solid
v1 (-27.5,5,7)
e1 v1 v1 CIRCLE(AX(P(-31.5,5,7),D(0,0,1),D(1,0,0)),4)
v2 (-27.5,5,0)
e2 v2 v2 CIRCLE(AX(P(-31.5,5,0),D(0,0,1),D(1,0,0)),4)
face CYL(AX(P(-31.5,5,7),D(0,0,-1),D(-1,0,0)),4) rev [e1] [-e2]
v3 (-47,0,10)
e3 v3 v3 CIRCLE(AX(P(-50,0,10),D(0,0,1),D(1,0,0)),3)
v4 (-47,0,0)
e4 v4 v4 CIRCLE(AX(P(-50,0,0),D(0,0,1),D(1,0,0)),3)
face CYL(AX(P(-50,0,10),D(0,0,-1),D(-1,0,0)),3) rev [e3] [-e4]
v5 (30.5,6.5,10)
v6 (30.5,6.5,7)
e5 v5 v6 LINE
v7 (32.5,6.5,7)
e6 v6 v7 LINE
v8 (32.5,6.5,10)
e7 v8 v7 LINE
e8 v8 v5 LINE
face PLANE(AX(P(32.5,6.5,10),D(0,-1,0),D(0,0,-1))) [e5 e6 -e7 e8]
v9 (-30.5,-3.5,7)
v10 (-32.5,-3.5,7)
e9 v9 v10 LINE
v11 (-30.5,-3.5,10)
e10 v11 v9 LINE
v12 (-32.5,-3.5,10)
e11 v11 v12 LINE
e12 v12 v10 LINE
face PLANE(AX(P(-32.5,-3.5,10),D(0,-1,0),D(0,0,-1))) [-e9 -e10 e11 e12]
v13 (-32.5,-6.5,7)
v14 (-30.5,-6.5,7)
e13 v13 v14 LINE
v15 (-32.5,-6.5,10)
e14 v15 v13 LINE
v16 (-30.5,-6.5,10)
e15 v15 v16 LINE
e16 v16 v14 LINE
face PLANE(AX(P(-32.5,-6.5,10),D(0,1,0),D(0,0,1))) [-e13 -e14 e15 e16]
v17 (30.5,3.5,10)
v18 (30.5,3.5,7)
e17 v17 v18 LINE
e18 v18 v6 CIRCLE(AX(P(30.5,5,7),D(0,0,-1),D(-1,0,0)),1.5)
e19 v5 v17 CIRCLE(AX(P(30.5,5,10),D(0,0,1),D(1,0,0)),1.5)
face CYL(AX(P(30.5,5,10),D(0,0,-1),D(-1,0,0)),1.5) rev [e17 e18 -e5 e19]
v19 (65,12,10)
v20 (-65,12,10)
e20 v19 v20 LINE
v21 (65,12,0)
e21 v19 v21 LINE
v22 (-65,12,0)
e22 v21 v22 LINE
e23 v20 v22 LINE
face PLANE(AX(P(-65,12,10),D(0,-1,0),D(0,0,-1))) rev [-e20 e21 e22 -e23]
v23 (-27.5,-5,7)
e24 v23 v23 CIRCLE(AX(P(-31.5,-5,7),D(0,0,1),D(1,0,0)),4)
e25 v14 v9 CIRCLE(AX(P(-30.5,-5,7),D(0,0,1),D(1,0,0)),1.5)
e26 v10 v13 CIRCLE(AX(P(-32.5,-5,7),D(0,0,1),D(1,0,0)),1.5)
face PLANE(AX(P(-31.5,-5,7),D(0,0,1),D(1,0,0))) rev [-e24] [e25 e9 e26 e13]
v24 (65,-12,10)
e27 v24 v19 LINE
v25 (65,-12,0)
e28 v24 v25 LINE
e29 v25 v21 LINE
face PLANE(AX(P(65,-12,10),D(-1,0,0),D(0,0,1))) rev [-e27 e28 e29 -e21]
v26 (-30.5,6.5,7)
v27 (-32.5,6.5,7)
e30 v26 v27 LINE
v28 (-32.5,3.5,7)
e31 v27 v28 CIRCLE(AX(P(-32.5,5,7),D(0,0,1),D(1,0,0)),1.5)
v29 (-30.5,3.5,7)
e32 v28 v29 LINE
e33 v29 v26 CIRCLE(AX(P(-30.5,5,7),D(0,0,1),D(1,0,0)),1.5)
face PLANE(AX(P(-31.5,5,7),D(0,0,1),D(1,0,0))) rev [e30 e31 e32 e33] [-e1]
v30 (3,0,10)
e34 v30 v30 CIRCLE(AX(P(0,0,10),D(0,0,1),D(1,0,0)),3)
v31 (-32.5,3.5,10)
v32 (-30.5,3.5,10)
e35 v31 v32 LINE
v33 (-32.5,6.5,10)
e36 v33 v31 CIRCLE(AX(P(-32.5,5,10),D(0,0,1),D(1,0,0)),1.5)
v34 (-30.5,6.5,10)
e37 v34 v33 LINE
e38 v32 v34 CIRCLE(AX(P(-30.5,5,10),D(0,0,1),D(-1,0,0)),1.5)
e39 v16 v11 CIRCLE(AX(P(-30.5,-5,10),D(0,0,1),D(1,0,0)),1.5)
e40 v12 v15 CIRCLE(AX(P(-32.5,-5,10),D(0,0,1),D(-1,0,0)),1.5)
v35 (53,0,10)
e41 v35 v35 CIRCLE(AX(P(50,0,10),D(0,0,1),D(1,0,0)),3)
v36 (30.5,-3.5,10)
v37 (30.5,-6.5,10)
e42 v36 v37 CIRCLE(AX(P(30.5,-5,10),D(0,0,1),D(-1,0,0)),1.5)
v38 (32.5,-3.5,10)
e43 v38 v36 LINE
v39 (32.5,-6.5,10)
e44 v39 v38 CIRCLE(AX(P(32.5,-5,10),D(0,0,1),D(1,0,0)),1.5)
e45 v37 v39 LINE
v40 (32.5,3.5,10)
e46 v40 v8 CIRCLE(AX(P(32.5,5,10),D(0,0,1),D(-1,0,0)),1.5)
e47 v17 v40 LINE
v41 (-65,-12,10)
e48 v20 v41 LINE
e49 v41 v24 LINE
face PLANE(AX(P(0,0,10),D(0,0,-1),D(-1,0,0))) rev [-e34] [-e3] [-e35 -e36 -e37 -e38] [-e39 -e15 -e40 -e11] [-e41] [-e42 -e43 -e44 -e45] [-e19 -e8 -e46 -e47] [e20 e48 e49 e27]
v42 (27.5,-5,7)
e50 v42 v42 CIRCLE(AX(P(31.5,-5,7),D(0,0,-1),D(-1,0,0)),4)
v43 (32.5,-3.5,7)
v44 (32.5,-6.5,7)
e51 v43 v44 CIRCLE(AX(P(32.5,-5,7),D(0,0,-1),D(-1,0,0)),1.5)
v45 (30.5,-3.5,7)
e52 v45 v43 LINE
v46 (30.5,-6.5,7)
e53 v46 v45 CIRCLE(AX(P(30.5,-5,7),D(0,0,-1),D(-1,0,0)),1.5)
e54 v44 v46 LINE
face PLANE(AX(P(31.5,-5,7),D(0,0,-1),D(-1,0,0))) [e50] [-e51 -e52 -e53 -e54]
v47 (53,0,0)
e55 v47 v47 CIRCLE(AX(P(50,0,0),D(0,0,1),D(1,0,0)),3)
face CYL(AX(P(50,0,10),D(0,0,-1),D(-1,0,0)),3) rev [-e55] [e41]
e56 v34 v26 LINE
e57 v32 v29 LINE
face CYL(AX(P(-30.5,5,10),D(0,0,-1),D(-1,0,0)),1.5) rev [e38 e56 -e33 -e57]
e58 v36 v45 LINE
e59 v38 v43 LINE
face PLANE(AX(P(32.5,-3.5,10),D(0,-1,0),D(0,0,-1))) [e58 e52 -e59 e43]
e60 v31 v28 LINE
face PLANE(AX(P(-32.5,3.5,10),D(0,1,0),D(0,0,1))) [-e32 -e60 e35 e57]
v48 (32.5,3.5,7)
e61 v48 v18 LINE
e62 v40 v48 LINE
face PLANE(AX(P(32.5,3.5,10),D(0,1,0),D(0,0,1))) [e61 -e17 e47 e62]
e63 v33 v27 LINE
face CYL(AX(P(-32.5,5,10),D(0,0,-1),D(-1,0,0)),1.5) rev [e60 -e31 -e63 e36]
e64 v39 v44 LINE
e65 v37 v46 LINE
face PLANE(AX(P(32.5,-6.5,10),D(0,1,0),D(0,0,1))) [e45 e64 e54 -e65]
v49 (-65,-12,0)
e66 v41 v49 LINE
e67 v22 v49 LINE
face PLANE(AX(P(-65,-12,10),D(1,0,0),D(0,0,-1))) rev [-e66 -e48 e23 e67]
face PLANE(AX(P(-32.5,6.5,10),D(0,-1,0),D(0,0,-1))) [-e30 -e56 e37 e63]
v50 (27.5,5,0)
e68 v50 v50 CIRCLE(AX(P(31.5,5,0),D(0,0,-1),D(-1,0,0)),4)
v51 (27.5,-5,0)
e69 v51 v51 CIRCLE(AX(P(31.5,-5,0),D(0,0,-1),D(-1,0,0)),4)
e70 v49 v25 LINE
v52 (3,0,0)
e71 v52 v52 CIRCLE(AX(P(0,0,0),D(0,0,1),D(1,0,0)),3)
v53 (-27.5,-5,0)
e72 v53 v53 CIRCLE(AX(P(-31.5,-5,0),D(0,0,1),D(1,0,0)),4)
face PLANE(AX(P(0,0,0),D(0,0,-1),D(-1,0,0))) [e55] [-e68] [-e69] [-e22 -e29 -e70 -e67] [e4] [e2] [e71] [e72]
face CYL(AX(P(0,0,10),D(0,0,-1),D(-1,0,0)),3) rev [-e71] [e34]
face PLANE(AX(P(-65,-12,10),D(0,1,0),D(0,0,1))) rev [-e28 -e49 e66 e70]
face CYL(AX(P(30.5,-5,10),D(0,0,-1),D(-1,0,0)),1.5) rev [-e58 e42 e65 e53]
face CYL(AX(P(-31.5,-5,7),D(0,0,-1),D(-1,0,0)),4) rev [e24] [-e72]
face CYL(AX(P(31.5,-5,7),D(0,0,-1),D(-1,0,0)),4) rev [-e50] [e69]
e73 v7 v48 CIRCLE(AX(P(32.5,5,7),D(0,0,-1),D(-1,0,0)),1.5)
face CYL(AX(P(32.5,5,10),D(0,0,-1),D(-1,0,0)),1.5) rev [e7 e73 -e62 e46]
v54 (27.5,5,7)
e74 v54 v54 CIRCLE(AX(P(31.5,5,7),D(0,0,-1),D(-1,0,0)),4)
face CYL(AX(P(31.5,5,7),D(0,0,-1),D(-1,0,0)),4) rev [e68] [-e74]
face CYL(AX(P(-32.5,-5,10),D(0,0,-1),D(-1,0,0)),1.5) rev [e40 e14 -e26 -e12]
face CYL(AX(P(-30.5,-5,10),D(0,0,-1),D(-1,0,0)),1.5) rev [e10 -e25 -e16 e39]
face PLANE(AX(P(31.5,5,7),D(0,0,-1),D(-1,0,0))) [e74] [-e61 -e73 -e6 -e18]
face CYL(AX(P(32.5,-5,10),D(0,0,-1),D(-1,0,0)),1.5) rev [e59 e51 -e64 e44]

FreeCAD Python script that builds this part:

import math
import FreeCAD as App
import Part
import Sketcher
Q = App.Units.Quantity

doc = App.newDocument("Part")
params = doc.addObject("Spreadsheet::Sheet", "Params")
for row, (alias, value) in enumerate([
    ("sketch1_diameter", "6 mm"),
    ("sketch1_radius", "1.5 mm"),
    ("sketch1_width", "130 mm"),
    ("sketch1_width2", "2 mm"),
    ("sketch1_height", "24 mm"),
    ("pad1_length", "10 mm"),
    ("sketch2_diameter", "8 mm"),
    ("pocket1_length", "7 mm"),
], start=1):
    params.set(f"A{row}", alias)
    params.set(f"B{row}", "=" + value)
    params.setAlias(f"B{row}", alias)

body = doc.addObject("PartDesign::Body", "Body")

# Sketch on XY plane
sketch1 = doc.addObject("Sketcher::SketchObject", "Sketch")
body.addObject(sketch1)
sketch1.AttachmentSupport = (doc.XY_Plane, [""])
sketch1.MapMode = "FlatFace"
sketch1.addGeometry(Part.LineSegment(App.Vector(-65, 12, 0), App.Vector(-65, -12, 0)), False)
sketch1.addGeometry(Part.LineSegment(App.Vector(-65, -12, 0), App.Vector(65, -12, 0)), False)
sketch1.addGeometry(Part.LineSegment(App.Vector(65, -12, 0), App.Vector(65, 12, 0)), False)
sketch1.addGeometry(Part.LineSegment(App.Vector(65, 12, 0), App.Vector(-65, 12, 0)), False)
sketch1.addGeometry(Part.LineSegment(App.Vector(-30.5, -6.5, 0), App.Vector(-32.5, -6.5, 0)), False)
sketch1.addGeometry(Part.ArcOfCircle(Part.Circle(App.Vector(-32.5, -5, 0), App.Vector(0, 0, 1), 1.5), math.radians(90), math.radians(270)), False)
sketch1.addGeometry(Part.LineSegment(App.Vector(-32.5, -3.5, 0), App.Vector(-30.5, -3.5, 0)), False)
sketch1.addGeometry(Part.ArcOfCircle(Part.Circle(App.Vector(-30.5, -5, 0), App.Vector(0, 0, 1), 1.5), math.radians(-90), math.radians(90)), False)
sketch1.addGeometry(Part.ArcOfCircle(Part.Circle(App.Vector(32.5, -5, 0), App.Vector(0, 0, 1), 1.5), math.radians(-90), math.radians(90)), False)
sketch1.addGeometry(Part.LineSegment(App.Vector(32.5, -6.5, 0), App.Vector(30.5, -6.5, 0)), False)
sketch1.addGeometry(Part.ArcOfCircle(Part.Circle(App.Vector(30.5, -5, 0), App.Vector(0, 0, 1), 1.5), math.radians(90), math.radians(270)), False)
sketch1.addGeometry(Part.LineSegment(App.Vector(30.5, -3.5, 0), App.Vector(32.5, -3.5, 0)), False)
sketch1.addGeometry(Part.Circle(App.Vector(-50, 0, 0), App.Vector(0, 0, 1), 3), False)
sketch1.addGeometry(Part.ArcOfCircle(Part.Circle(App.Vector(-32.5, 5, 0), App.Vector(0, 0, 1), 1.5), math.radians(90), math.radians(270)), False)
sketch1.addGeometry(Part.LineSegment(App.Vector(-32.5, 6.5, 0), App.Vector(-30.5, 6.5, 0)), False)
sketch1.addGeometry(Part.ArcOfCircle(Part.Circle(App.Vector(-30.5, 5, 0), App.Vector(0, 0, 1), 1.5), math.radians(-90), math.radians(90)), False)
sketch1.addGeometry(Part.LineSegment(App.Vector(-30.5, 3.5, 0), App.Vector(-32.5, 3.5, 0)), False)
sketch1.addGeometry(Part.Circle(App.Vector(0, 0, 0), App.Vector(0, 0, 1), 3), False)
sketch1.addGeometry(Part.Circle(App.Vector(50, 0, 0), App.Vector(0, 0, 1), 3), False)
sketch1.addGeometry(Part.LineSegment(App.Vector(30.5, 6.5, 0), App.Vector(32.5, 6.5, 0)), False)
sketch1.addGeometry(Part.ArcOfCircle(Part.Circle(App.Vector(32.5, 5, 0), App.Vector(0, 0, 1), 1.5), math.radians(-90), math.radians(90)), False)
sketch1.addGeometry(Part.LineSegment(App.Vector(32.5, 3.5, 0), App.Vector(30.5, 3.5, 0)), False)
sketch1.addGeometry(Part.ArcOfCircle(Part.Circle(App.Vector(30.5, 5, 0), App.Vector(0, 0, 1), 1.5), math.radians(90), math.radians(270)), False)
sketch1.addConstraint(Sketcher.Constraint("Coincident", 0, 2, 1, 1))
sketch1.addConstraint(Sketcher.Constraint("Coincident", 1, 2, 2, 1))
sketch1.addConstraint(Sketcher.Constraint("Coincident", 2, 2, 3, 1))
sketch1.addConstraint(Sketcher.Constraint("Coincident", 3, 2, 0, 1))
sketch1.addConstraint(Sketcher.Constraint("Tangent", 4, 2, 5, 2))
sketch1.addConstraint(Sketcher.Constraint("Tangent", 5, 1, 6, 1))
sketch1.addConstraint(Sketcher.Constraint("Tangent", 6, 2, 7, 2))
sketch1.addConstraint(Sketcher.Constraint("Tangent", 7, 1, 4, 1))
sketch1.addConstraint(Sketcher.Constraint("Tangent", 8, 1, 9, 1))
sketch1.addConstraint(Sketcher.Constraint("Tangent", 9, 2, 10, 2))
sketch1.addConstraint(Sketcher.Constraint("Tangent", 10, 1, 11, 1))
sketch1.addConstraint(Sketcher.Constraint("Tangent", 11, 2, 8, 2))
sketch1.addConstraint(Sketcher.Constraint("Tangent", 13, 1, 14, 1))
sketch1.addConstraint(Sketcher.Constraint("Tangent", 14, 2, 15, 2))
sketch1.addConstraint(Sketcher.Constraint("Tangent", 15, 1, 16, 1))
sketch1.addConstraint(Sketcher.Constraint("Tangent", 16, 2, 13, 2))
sketch1.addConstraint(Sketcher.Constraint("Tangent", 19, 2, 20, 2))
sketch1.addConstraint(Sketcher.Constraint("Tangent", 20, 1, 21, 1))
sketch1.addConstraint(Sketcher.Constraint("Tangent", 21, 2, 22, 2))
sketch1.addConstraint(Sketcher.Constraint("Tangent", 22, 1, 19, 1))
sketch1.addConstraint(Sketcher.Constraint("Vertical", 0))
sketch1.addConstraint(Sketcher.Constraint("Horizontal", 1))
sketch1.addConstraint(Sketcher.Constraint("Vertical", 2))
sketch1.addConstraint(Sketcher.Constraint("Horizontal", 3))
sketch1.addConstraint(Sketcher.Constraint("Horizontal", 4))
sketch1.addConstraint(Sketcher.Constraint("Horizontal", 6))
sketch1.addConstraint(Sketcher.Constraint("Horizontal", 9))
sketch1.addConstraint(Sketcher.Constraint("Horizontal", 11))
sketch1.addConstraint(Sketcher.Constraint("Horizontal", 14))
sketch1.addConstraint(Sketcher.Constraint("Horizontal", 16))
sketch1.addConstraint(Sketcher.Constraint("Horizontal", 19))
sketch1.addConstraint(Sketcher.Constraint("Horizontal", 21))
sketch1.addConstraint(Sketcher.Constraint("Coincident", 17, 3, -1, 1))
sketch1.addConstraint(Sketcher.Constraint("Equal", 7, 8))
sketch1.addConstraint(Sketcher.Constraint("Equal", 10, 13))
sketch1.addConstraint(Sketcher.Constraint("Equal", 12, 17))
sketch1.addConstraint(Sketcher.Constraint("Equal", 17, 18))
sketch1.addConstraint(Sketcher.Constraint("Equal", 15, 20))
sketch1.addConstraint(Sketcher.Constraint("Symmetric", 8, 3, 13, 3, -1, 1))
sketch1.addConstraint(Sketcher.Constraint("Symmetric", 12, 3, 18, 3, -1, 1))
sketch1.addConstraint(Sketcher.Constraint("Symmetric", 5, 3, 20, 3, -1, 1))
sketch1.addConstraint(Sketcher.Constraint("Symmetric", 0, 2, 2, 2, -1, 1))
sketch1.addConstraint(Sketcher.Constraint("Symmetric", 5, 3, 8, 3, -2))
sketch1.addConstraint(Sketcher.Constraint("PointOnObject", 12, 3, -1))
sketch1.addConstraint(Sketcher.Constraint("Vertical", 7, 3, 15, 3))
sketch1.addConstraint(Sketcher.Constraint("Vertical", 10, 3, 22, 3))
sketch1.addConstraint(Sketcher.Constraint("Equal", 6, 9))
sketch1.addConstraint(Sketcher.Constraint("Diameter", 12, Q("6 mm")))
sketch1.addConstraint(Sketcher.Constraint("Radius", 5, Q("1.5 mm")))
sketch1.addConstraint(Sketcher.Constraint("DistanceX", 1, 1, 1, 2, Q("130 mm")))
sketch1.addConstraint(Sketcher.Constraint("DistanceX", 4, 2, 4, 1, Q("2 mm")))
sketch1.addConstraint(Sketcher.Constraint("DistanceY", 0, 2, 0, 1, Q("24 mm")))
sketch1.addConstraint(Sketcher.Constraint("DistanceY", 5, 3, -1, 1, Q("5 mm")))
sketch1.addConstraint(Sketcher.Constraint("DistanceX", 12, 3, -1, 1, Q("50 mm")))
sketch1.addConstraint(Sketcher.Constraint("DistanceX", 7, 3, 8, 3, Q("63 mm")))
sketch1.setExpression("Constraints[47]", "Params.sketch1_diameter")
sketch1.setExpression("Constraints[48]", "Params.sketch1_radius")
sketch1.setExpression("Constraints[49]", "Params.sketch1_width")
sketch1.setExpression("Constraints[50]", "Params.sketch1_width2")
sketch1.setExpression("Constraints[51]", "Params.sketch1_height")
pad1 = doc.addObject("PartDesign::Pad", "Pad")
body.addObject(pad1)
pad1.Profile = sketch1
pad1.setExpression("Length", "Params.pad1_length")

# Sketch on XY plane
sketch2 = doc.addObject("Sketcher::SketchObject", "Sketch001")
body.addObject(sketch2)
sketch2.AttachmentSupport = (doc.XY_Plane, [""])
sketch2.MapMode = "FlatFace"
sketch2.addGeometry(Part.Circle(App.Vector(31.5, 5, 0), App.Vector(0, 0, 1), 4), False)
sketch2.addGeometry(Part.Circle(App.Vector(31.5, -5, 0), App.Vector(0, 0, 1), 4), False)
sketch2.addGeometry(Part.Circle(App.Vector(-31.5, -5, 0), App.Vector(0, 0, 1), 4), False)
sketch2.addGeometry(Part.Circle(App.Vector(-31.5, 5, 0), App.Vector(0, 0, 1), 4), False)
sketch2.addConstraint(Sketcher.Constraint("Equal", 0, 1))
sketch2.addConstraint(Sketcher.Constraint("Equal", 1, 2))
sketch2.addConstraint(Sketcher.Constraint("Equal", 2, 3))
sketch2.addConstraint(Sketcher.Constraint("Symmetric", 0, 3, 2, 3, -1, 1))
sketch2.addConstraint(Sketcher.Constraint("Symmetric", 1, 3, 3, 3, -1, 1))
sketch2.addConstraint(Sketcher.Constraint("Symmetric", 1, 3, 2, 3, -2))
sketch2.addConstraint(Sketcher.Constraint("Diameter", 0, Q("8 mm")))
sketch2.addConstraint(Sketcher.Constraint("DistanceY", -1, 1, 0, 3, Q("5 mm")))
sketch2.addConstraint(Sketcher.Constraint("DistanceX", 2, 3, 1, 3, Q("63 mm")))
sketch2.setExpression("Constraints[6]", "Params.sketch2_diameter")
pocket1 = doc.addObject("PartDesign::Pocket", "Pocket")
body.addObject(pocket1)
pocket1.Profile = sketch2
pocket1.setExpression("Length", "Params.pocket1_length")
pocket1.Reversed = True

doc.recompute()
